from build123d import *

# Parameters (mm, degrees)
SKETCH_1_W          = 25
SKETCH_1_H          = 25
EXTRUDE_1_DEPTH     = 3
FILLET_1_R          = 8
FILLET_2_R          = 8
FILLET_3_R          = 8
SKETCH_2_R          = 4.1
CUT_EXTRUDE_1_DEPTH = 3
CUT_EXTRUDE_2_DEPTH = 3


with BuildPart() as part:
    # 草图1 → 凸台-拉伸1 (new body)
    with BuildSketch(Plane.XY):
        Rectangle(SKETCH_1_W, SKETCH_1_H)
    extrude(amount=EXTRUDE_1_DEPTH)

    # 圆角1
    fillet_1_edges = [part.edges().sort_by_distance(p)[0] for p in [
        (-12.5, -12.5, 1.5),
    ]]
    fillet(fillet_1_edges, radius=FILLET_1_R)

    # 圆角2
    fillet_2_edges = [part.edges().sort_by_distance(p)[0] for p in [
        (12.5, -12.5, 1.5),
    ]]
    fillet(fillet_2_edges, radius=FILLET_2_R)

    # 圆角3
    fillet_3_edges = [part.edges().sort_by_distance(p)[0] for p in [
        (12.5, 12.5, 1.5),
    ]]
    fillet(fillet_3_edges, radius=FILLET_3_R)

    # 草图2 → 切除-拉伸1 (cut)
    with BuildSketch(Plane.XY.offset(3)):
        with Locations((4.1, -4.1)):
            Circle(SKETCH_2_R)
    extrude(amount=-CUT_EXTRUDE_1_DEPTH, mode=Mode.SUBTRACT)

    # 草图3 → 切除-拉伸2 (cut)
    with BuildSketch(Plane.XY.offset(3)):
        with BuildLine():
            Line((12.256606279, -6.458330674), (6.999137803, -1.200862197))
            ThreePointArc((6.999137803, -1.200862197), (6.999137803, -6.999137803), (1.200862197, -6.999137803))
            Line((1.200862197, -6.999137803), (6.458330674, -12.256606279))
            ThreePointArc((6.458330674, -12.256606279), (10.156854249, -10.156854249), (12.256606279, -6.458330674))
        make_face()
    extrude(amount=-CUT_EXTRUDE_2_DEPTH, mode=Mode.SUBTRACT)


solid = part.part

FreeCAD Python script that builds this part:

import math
import FreeCAD as App
import Part
import Sketcher
Q = App.Units.Quantity


def edges_at(feature, points):
    """Names of the edges that pass closest to the given points."""
    edges = feature.Shape.Edges
    near = lambda p: min(range(len(edges)), key=lambda i: edges[i].distToShape(Part.Vertex(*p))[0])
    return sorted({f"Edge{near(p) + 1}" for p in points})


def add_polygon(sketch, points):
    """Adds a closed chain of lines whose ends are joined by coincident constraints."""
    first, n = sketch.GeometryCount, len(points)
    for a, b in zip(points, points[1:] + points[:1]):
        sketch.addGeometry(Part.LineSegment(App.Vector(*a, 0), App.Vector(*b, 0)), False)
    for i in range(n):
        sketch.addConstraint(Sketcher.Constraint("Coincident", first + i, 2, first + (i + 1) % n, 1))

doc = App.newDocument("Part")
body = doc.addObject("PartDesign::Body", "Body")

sketch1 = body.newObject("Sketcher::SketchObject", "Sketch")
sketch1.AttachmentSupport = (doc.getObject("XY_Plane"), [""])
sketch1.MapMode = "FlatFace"
add_polygon(sketch1, [(-12.5, 12.5), (-12.5, -12.5), (12.5, -12.5), (12.5, 12.5)])
sketch1.addConstraint(Sketcher.Constraint("Vertical", 0))
sketch1.addConstraint(Sketcher.Constraint("Horizontal", 1))
sketch1.addConstraint(Sketcher.Constraint("Vertical", 2))
sketch1.addConstraint(Sketcher.Constraint("Horizontal", 3))
sketch1.addConstraint(Sketcher.Constraint("Symmetric", 0, 2, 2, 2, -1, 1))
sketch1.addConstraint(Sketcher.Constraint("Equal", 3, 0))
sketch1.addConstraint(Sketcher.Constraint("DistanceX", 1, 1, 1, 2, Q("25 mm")))
pad1 = body.newObject("PartDesign::Pad", "Pad")
pad1.Profile = sketch1
pad1.Length = 3
doc.recompute()

fillet = body.newObject("PartDesign::Fillet", "Fillet")
fillet.Base = (pad1, edges_at(pad1, [(-12.5, -12.5, 1.5)]))
fillet.Radius = 8
doc.recompute()

fillet2 = body.newObject("PartDesign::Fillet", "Fillet001")
fillet2.Base = (fillet, edges_at(fillet, [(12.5, -12.5, 1.5)]))
fillet2.Radius = 8
doc.recompute()

fillet3 = body.newObject("PartDesign::Fillet", "Fillet002")
fillet3.Base = (fillet2, edges_at(fillet2, [(12.5, 12.5, 1.5)]))
fillet3.Radius = 8

sketch2 = body.newObject("Sketcher::SketchObject", "Sketch001")
sketch2.AttachmentSupport = (doc.getObject("XY_Plane"), [""])
sketch2.MapMode = "FlatFace"
sketch2.AttachmentOffset = App.Placement(App.Vector(0, 0, 3), App.Rotation())
sketch2.addGeometry(Part.Circle(App.Vector(4.1, -4.1, 0), App.Vector(0, 0, 1), 4.1), False)
sketch2.addConstraint(Sketcher.Constraint("Diameter", 0, Q("8.2 mm")))
sketch2.addConstraint(Sketcher.Constraint("DistanceX", -1, 1, 0, 3, Q("4.1 mm")))
sketch2.addConstraint(Sketcher.Constraint("DistanceY", 0, 3, -1, 1, Q("4.1 mm")))
pocket1 = body.newObject("PartDesign::Pocket", "Pocket")
pocket1.Profile = sketch2
pocket1.Length = 3

sketch3 = body.newObject("Sketcher::SketchObject", "Sketch002")
sketch3.AttachmentSupport = (doc.getObject("XY_Plane"), [""])
sketch3.MapMode = "FlatFace"
sketch3.AttachmentOffset = App.Placement(App.Vector(0, 0, 3), App.Rotation())
sketch3.addGeometry(Part.LineSegment(App.Vector(12.256606, -6.458331, 0), App.Vector(6.999138, -1.200862, 0)), False)
sketch3.addGeometry(Part.ArcOfCircle(Part.Circle(App.Vector(4.1, -4.1, 0), App.Vector(0, 0, 1), 4.1), math.radians(-135), math.radians(45)), False)
sketch3.addGeometry(Part.LineSegment(App.Vector(1.200862, -6.999138, 0), App.Vector(6.458331, -12.256606, 0)), False)
sketch3.addGeometry(Part.ArcOfCircle(Part.Circle(App.Vector(4.5, -4.5, 0), App.Vector(0, 0, 1), 8), math.radians(-75.830497), math.radians(-14.169503)), False)
sketch3.addConstraint(Sketcher.Constraint("Tangent", 0, 2, 1, 2))
sketch3.addConstraint(Sketcher.Constraint("Tangent", 1, 1, 2, 1))
sketch3.addConstraint(Sketcher.Constraint("Coincident", 2, 2, 3, 1))
sketch3.addConstraint(Sketcher.Constraint("Coincident", 3, 2, 0, 1))
sketch3.addConstraint(Sketcher.Constraint("Parallel", 0, 2))
sketch3.addConstraint(Sketcher.Constraint("Equal", 0, 2))
sketch3.addConstraint(Sketcher.Constraint("Radius", 3, Q("8 mm")))
sketch3.addConstraint(Sketcher.Constraint("Radius", 1, Q("4.1 mm")))
sketch3.addConstraint(Sketcher.Constraint("Angle", 0, Q("135 deg")))
sketch3.addConstraint(Sketcher.Constraint("DistanceX", -1, 1, 1, 3, Q("4.1 mm")))
sketch3.addConstraint(Sketcher.Constraint("DistanceY", 1, 3, -1, 1, Q("4.1 mm")))
sketch3.addConstraint(Sketcher.Constraint("DistanceX", -1, 1, 3, 3, Q("4.5 mm")))
pocket2 = body.newObject("PartDesign::Pocket", "Pocket001")
pocket2.Profile = sketch3
pocket2.Length = 3

doc.recompute()
